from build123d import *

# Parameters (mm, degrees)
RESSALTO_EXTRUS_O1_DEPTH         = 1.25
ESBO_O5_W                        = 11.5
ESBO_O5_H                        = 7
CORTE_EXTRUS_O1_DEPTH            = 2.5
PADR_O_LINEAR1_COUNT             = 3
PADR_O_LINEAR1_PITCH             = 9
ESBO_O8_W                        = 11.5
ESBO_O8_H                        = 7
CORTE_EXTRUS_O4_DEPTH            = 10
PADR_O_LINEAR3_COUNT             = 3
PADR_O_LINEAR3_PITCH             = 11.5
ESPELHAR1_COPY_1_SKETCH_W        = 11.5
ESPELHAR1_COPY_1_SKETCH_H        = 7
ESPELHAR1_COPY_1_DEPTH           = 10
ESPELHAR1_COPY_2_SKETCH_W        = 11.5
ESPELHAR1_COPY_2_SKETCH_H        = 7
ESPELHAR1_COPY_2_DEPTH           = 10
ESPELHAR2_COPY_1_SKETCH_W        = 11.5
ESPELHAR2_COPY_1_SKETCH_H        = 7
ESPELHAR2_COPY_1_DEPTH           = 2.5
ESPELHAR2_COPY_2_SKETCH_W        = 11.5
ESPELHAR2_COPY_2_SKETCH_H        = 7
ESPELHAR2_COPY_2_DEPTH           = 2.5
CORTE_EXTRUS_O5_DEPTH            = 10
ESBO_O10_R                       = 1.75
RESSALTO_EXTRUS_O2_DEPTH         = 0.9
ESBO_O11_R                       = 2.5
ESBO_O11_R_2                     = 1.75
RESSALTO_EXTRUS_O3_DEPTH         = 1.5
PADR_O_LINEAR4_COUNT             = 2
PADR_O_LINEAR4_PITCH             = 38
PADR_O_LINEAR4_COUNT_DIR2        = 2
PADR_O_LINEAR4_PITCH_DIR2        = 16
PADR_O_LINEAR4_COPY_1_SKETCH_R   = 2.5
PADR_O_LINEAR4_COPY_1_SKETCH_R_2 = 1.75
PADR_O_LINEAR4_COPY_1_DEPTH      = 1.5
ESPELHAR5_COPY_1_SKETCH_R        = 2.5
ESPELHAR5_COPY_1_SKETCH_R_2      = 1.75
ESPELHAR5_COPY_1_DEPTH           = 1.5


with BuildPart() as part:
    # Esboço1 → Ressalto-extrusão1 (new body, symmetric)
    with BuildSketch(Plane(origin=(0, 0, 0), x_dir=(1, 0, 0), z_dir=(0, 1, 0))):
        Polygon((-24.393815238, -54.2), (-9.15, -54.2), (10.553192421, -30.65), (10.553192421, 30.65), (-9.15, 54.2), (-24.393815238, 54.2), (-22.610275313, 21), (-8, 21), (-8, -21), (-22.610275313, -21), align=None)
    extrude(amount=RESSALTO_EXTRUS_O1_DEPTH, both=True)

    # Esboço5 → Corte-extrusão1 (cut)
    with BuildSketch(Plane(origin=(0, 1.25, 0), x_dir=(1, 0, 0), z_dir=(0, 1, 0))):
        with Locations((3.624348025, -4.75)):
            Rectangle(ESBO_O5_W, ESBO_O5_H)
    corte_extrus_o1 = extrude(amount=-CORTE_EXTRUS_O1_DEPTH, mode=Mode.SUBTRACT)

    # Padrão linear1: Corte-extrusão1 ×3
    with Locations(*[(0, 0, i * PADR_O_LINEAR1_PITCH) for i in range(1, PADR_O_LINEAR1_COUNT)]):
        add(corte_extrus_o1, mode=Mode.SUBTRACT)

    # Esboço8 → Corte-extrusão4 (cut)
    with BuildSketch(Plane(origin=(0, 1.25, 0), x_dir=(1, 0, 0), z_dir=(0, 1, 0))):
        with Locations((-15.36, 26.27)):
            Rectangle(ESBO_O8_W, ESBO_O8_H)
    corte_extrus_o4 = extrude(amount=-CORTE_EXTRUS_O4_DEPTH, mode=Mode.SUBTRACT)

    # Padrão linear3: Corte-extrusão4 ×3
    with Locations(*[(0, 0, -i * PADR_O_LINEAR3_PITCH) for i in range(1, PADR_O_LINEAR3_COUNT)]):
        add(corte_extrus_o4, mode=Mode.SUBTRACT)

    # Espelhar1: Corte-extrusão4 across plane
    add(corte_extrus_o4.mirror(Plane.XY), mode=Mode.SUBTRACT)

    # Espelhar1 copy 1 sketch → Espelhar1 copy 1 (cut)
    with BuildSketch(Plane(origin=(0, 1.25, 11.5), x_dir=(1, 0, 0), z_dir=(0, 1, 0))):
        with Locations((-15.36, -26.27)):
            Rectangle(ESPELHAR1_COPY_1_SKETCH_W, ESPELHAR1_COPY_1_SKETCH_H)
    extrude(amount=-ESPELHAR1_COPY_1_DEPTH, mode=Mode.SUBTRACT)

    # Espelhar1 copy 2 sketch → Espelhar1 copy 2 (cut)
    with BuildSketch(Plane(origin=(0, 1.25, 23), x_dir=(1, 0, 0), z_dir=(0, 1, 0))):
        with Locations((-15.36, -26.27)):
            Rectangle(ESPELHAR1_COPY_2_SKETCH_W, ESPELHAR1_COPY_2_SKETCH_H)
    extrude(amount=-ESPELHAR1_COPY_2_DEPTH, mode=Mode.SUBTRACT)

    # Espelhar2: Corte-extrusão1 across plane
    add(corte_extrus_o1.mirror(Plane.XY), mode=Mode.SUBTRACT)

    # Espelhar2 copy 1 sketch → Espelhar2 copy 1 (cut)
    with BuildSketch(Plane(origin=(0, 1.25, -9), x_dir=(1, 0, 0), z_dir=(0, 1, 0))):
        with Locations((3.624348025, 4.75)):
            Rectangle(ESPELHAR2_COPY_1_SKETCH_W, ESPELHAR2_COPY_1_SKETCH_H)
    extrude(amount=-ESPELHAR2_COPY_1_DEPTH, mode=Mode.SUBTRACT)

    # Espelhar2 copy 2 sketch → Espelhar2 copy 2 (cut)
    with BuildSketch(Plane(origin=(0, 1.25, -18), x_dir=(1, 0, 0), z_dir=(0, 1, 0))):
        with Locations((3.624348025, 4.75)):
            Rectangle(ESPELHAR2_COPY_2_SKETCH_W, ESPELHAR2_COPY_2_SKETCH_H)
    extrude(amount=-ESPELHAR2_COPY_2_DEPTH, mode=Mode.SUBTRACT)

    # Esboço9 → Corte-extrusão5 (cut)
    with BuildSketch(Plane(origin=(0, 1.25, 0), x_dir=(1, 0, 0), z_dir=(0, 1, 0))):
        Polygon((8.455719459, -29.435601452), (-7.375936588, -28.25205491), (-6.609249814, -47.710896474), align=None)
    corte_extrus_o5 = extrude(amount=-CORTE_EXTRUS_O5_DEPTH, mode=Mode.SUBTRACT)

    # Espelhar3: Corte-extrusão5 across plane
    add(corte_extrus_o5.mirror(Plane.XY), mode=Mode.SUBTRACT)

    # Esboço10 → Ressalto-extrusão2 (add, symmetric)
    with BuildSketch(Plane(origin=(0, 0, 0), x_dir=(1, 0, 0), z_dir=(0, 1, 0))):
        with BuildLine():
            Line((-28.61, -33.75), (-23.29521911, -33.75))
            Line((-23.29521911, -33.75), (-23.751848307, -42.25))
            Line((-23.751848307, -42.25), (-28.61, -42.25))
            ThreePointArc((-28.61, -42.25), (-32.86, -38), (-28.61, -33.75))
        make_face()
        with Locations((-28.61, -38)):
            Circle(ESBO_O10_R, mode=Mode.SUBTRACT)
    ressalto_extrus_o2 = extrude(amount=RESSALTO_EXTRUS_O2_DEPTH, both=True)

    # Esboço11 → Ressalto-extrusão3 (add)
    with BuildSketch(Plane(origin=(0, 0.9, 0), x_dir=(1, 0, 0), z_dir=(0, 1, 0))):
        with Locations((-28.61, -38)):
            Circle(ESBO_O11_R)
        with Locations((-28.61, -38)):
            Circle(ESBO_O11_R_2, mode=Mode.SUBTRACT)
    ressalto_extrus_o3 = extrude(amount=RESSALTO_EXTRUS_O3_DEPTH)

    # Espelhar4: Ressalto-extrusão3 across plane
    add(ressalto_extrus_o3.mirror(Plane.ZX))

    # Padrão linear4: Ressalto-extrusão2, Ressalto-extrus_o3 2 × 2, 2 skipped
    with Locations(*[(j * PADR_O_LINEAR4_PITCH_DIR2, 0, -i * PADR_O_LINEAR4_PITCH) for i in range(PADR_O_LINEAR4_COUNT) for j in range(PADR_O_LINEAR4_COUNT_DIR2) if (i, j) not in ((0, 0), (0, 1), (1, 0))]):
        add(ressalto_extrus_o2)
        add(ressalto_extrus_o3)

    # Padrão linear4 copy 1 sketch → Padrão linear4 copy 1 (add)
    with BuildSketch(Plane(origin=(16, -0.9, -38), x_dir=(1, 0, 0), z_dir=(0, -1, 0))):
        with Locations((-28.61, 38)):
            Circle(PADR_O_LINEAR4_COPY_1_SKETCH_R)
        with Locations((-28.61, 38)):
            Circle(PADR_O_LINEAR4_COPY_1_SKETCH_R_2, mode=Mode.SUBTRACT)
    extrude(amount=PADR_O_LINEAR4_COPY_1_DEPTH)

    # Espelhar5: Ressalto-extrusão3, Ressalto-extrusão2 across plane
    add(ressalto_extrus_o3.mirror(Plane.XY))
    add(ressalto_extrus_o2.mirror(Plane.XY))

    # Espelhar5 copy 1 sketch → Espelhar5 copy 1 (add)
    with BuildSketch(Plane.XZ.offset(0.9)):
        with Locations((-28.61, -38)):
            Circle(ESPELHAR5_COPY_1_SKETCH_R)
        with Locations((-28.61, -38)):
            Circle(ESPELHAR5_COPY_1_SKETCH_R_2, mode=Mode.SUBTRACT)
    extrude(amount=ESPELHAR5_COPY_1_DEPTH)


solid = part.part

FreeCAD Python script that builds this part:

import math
import FreeCAD as App
import Part
import Sketcher

V = App.Vector

doc = App.newDocument("Part")
params = doc.addObject("Spreadsheet::Sheet", "Params")
for row, (alias, value) in enumerate([
    ("sketch1_height", "42 mm"),
    ("sketch1_height2", "61.3 mm"),
    ("pad1_length", "2.5 mm"),
    ("sketch2_height", "7 mm"),
    ("sketch2_width", "11.5 mm"),
    ("pocket1_length", "2.5 mm"),
    ("linearpattern_pitch", "9 mm"),
    ("sketch3_height", "7 mm"),
    ("sketch3_width", "11.5 mm"),
    ("pocket2_length", "10 mm"),
    ("linearpattern2_pitch", "11.5 mm"),
    ("sketch4_height", "7 mm"),
    ("sketch4_width", "11.5 mm"),
    ("pocket3_length", "10 mm"),
    ("sketch5_height", "7 mm"),
    ("sketch5_width", "11.5 mm"),
    ("pocket4_length", "10 mm"),
    ("sketch6_height", "7 mm"),
    ("sketch6_width", "11.5 mm"),
    ("pocket5_length", "2.5 mm"),
    ("sketch7_height", "7 mm"),
    ("sketch7_width", "11.5 mm"),
    ("pocket6_length", "2.5 mm"),
    ("pocket7_length", "10 mm"),
    ("sketch9_diameter", "3.5 mm"),
    ("sketch9_radius", "4.25 mm"),
    ("pad2_length", "1.8 mm"),
    ("sketch10_diameter", "5 mm"),
    ("sketch10_diameter2", "3.5 mm"),
    ("pad3_length", "1.5 mm"),
    ("linearpattern3_pitch", "41.231056 mm"),
    ("sketch11_diameter", "5 mm"),
    ("sketch11_diameter2", "3.5 mm"),
    ("pad4_length", "1.5 mm"),
    ("sketch12_diameter", "5 mm"),
    ("sketch12_diameter2", "3.5 mm"),
    ("pad5_length", "1.5 mm"),
], start=1):
    params.set(f"A{row}", alias)
    params.set(f"B{row}", "=" + value)
    params.setAlias(f"B{row}", alias)

body = doc.addObject("PartDesign::Body", "Body")

# Sketch on XZ plane
sketch1 = doc.addObject("Sketcher::SketchObject", "Sketch")
body.addObject(sketch1)
sketch1.AttachmentSupport = (doc.XZ_Plane, [""])
sketch1.MapMode = "FlatFace"
sketch1.addGeometry(Part.LineSegment(V(-24.393815, 54.2, 0), V(-9.15, 54.2, 0)), False)
sketch1.addGeometry(Part.LineSegment(V(-9.15, 54.2, 0), V(10.553192, 30.65, 0)), False)
sketch1.addGeometry(Part.LineSegment(V(10.553192, 30.65, 0), V(10.553192, -30.65, 0)), False)
sketch1.addGeometry(Part.LineSegment(V(10.553192, -30.65, 0), V(-9.15, -54.2, 0)), False)
sketch1.addGeometry(Part.LineSegment(V(-9.15, -54.2, 0), V(-24.393815, -54.2, 0)), False)
sketch1.addGeometry(Part.LineSegment(V(-24.393815, -54.2, 0), V(-22.610275, -21, 0)), False)
sketch1.addGeometry(Part.LineSegment(V(-22.610275, -21, 0), V(-8, -21, 0)), False)
sketch1.addGeometry(Part.LineSegment(V(-8, -21, 0), V(-8, 21, 0)), False)
sketch1.addGeometry(Part.LineSegment(V(-8, 21, 0), V(-22.610275, 21, 0)), False)
sketch1.addGeometry(Part.LineSegment(V(-22.610275, 21, 0), V(-24.393815, 54.2, 0)), False)
sketch1.addConstraint(Sketcher.Constraint("Coincident", 0, 2, 1, 1))
sketch1.addConstraint(Sketcher.Constraint("Coincident", 1, 2, 2, 1))
sketch1.addConstraint(Sketcher.Constraint("Coincident", 2, 2, 3, 1))
sketch1.addConstraint(Sketcher.Constraint("Coincident", 3, 2, 4, 1))
sketch1.addConstraint(Sketcher.Constraint("Coincident", 4, 2, 5, 1))
sketch1.addConstraint(Sketcher.Constraint("Coincident", 5, 2, 6, 1))
sketch1.addConstraint(Sketcher.Constraint("Coincident", 6, 2, 7, 1))
sketch1.addConstraint(Sketcher.Constraint("Coincident", 7, 2, 8, 1))
sketch1.addConstraint(Sketcher.Constraint("Coincident", 8, 2, 9, 1))
sketch1.addConstraint(Sketcher.Constraint("Coincident", 9, 2, 0, 1))
sketch1.addConstraint(Sketcher.Constraint("Horizontal", 0))
sketch1.addConstraint(Sketcher.Constraint("Vertical", 2))
sketch1.addConstraint(Sketcher.Constraint("Horizontal", 4))
sketch1.addConstraint(Sketcher.Constraint("Horizontal", 6))
sketch1.addConstraint(Sketcher.Constraint("Vertical", 7))
sketch1.addConstraint(Sketcher.Constraint("Horizontal", 8))
sketch1.addConstraint(Sketcher.Constraint("Symmetric", 0, 2, 3, 2, -1))
sketch1.addConstraint(Sketcher.Constraint("Symmetric", 5, 2, 8, 2, -1))
sketch1.addConstraint(Sketcher.Constraint("Vertical", 4, 2, 9, 2))
sketch1.addConstraint(Sketcher.Constraint("Equal", 1, 3))
sketch1.addConstraint(Sketcher.Constraint("DistanceY", 7, 1, 7, 2, 42.0))
sketch1.addConstraint(Sketcher.Constraint("DistanceY", 2, 2, 2, 1, 61.3))
sketch1.addConstraint(Sketcher.Constraint("DistanceX", 6, 2, -1, 1, 8.0))
sketch1.addConstraint(Sketcher.Constraint("DistanceY", -1, 1, 0, 2, 54.2))
sketch1.addConstraint(Sketcher.Constraint("DistanceX", 0, 2, -1, 1, 9.15))
sketch1.addConstraint(Sketcher.Constraint("DistanceX", 0, 1, 0, 2, 15.243815))
sketch1.addConstraint(Sketcher.Constraint("DistanceX", 6, 1, 6, 2, 14.610275))
sketch1.addConstraint(Sketcher.Constraint("Distance", 1, 30.705346))
sketch1.setExpression("Constraints[20]", "Params.sketch1_height")
sketch1.setExpression("Constraints[21]", "Params.sketch1_height2")
pad1 = doc.addObject("PartDesign::Pad", "Pad")
body.addObject(pad1)
pad1.Profile = sketch1
pad1.setExpression("Length", "Params.pad1_length")
pad1.Midplane = True

# Sketch on XZ plane
sketch2 = doc.addObject("Sketcher::SketchObject", "Sketch001")
body.addObject(sketch2)
sketch2.AttachmentSupport = (doc.XZ_Plane, [""])
sketch2.MapMode = "FlatFace"
sketch2.AttachmentOffset = App.Placement(V(0, 0, -1.25), App.Rotation())
sketch2.addGeometry(Part.LineSegment(V(-2.125652, 1.25, 0), V(-2.125652, 8.25, 0)), False)
sketch2.addGeometry(Part.LineSegment(V(-2.125652, 8.25, 0), V(9.374348, 8.25, 0)), False)
sketch2.addGeometry(Part.LineSegment(V(9.374348, 8.25, 0), V(9.374348, 1.25, 0)), False)
sketch2.addGeometry(Part.LineSegment(V(9.374348, 1.25, 0), V(-2.125652, 1.25, 0)), False)
sketch2.addConstraint(Sketcher.Constraint("Coincident", 0, 2, 1, 1))
sketch2.addConstraint(Sketcher.Constraint("Coincident", 1, 2, 2, 1))
sketch2.addConstraint(Sketcher.Constraint("Coincident", 2, 2, 3, 1))
sketch2.addConstraint(Sketcher.Constraint("Coincident", 3, 2, 0, 1))
sketch2.addConstraint(Sketcher.Constraint("Vertical", 0))
sketch2.addConstraint(Sketcher.Constraint("Horizontal", 1))
sketch2.addConstraint(Sketcher.Constraint("Vertical", 2))
sketch2.addConstraint(Sketcher.Constraint("Horizontal", 3))
sketch2.addConstraint(Sketcher.Constraint("DistanceY", 0, 1, 0, 2, 7.0))
sketch2.addConstraint(Sketcher.Constraint("DistanceX", 1, 1, 1, 2, 11.5))
sketch2.addConstraint(Sketcher.Constraint("DistanceY", -1, 1, 0, 2, 8.25))
sketch2.addConstraint(Sketcher.Constraint("DistanceX", 0, 2, -1, 1, 2.125652))
sketch2.setExpression("Constraints[8]", "Params.sketch2_height")
sketch2.setExpression("Constraints[9]", "Params.sketch2_width")
pocket1 = doc.addObject("PartDesign::Pocket", "Pocket")
body.addObject(pocket1)
pocket1.Profile = sketch2
pocket1.setExpression("Length", "Params.pocket1_length")
pocket1.Reversed = True
doc.recompute()

linearpattern = doc.addObject("PartDesign::LinearPattern", "LinearPattern")
body.addObject(linearpattern)
linearpattern.Originals = [pocket1]
linearpattern.Direction = (doc.Z_Axis, [""])
linearpattern.Mode = "offset"
linearpattern.setExpression("Offset", "Params.linearpattern_pitch")
linearpattern.Occurrences = 3
body.Tip = linearpattern

# Sketch on XZ plane
sketch3 = doc.addObject("Sketcher::SketchObject", "Sketch002")
body.addObject(sketch3)
sketch3.AttachmentSupport = (doc.XZ_Plane, [""])
sketch3.MapMode = "FlatFace"
sketch3.AttachmentOffset = App.Placement(V(0, 0, -1.25), App.Rotation())
sketch3.addGeometry(Part.LineSegment(V(-21.11, -29.77, 0), V(-21.11, -22.77, 0)), False)
sketch3.addGeometry(Part.LineSegment(V(-21.11, -22.77, 0), V(-9.61, -22.77, 0)), False)
sketch3.addGeometry(Part.LineSegment(V(-9.61, -22.77, 0), V(-9.61, -29.77, 0)), False)
sketch3.addGeometry(Part.LineSegment(V(-9.61, -29.77, 0), V(-21.11, -29.77, 0)), False)
sketch3.addConstraint(Sketcher.Constraint("Coincident", 0, 2, 1, 1))
sketch3.addConstraint(Sketcher.Constraint("Coincident", 1, 2, 2, 1))
sketch3.addConstraint(Sketcher.Constraint("Coincident", 2, 2, 3, 1))
sketch3.addConstraint(Sketcher.Constraint("Coincident", 3, 2, 0, 1))
sketch3.addConstraint(Sketcher.Constraint("Vertical", 0))
sketch3.addConstraint(Sketcher.Constraint("Horizontal", 1))
sketch3.addConstraint(Sketcher.Constraint("Vertical", 2))
sketch3.addConstraint(Sketcher.Constraint("Horizontal", 3))
sketch3.addConstraint(Sketcher.Constraint("DistanceY", 0, 1, 0, 2, 7.0))
sketch3.addConstraint(Sketcher.Constraint("DistanceX", 1, 1, 1, 2, 11.5))
sketch3.addConstraint(Sketcher.Constraint("DistanceX", 0, 2, -1, 1, 21.11))
sketch3.addConstraint(Sketcher.Constraint("DistanceY", 0, 2, -1, 1, 22.77))
sketch3.setExpression("Constraints[8]", "Params.sketch3_height")
sketch3.setExpression("Constraints[9]", "Params.sketch3_width")
pocket2 = doc.addObject("PartDesign::Pocket", "Pocket001")
body.addObject(pocket2)
pocket2.Profile = sketch3
pocket2.setExpression("Length", "Params.pocket2_length")
pocket2.Reversed = True
doc.recompute()

linearpattern2 = doc.addObject("PartDesign::LinearPattern", "LinearPattern001")
body.addObject(linearpattern2)
linearpattern2.Originals = [pocket2]
linearpattern2.Direction = (doc.Z_Axis, [""])
linearpattern2.Mode = "offset"
linearpattern2.setExpression("Offset", "Params.linearpattern2_pitch")
linearpattern2.Occurrences = 3
linearpattern2.Reversed = True
body.Tip = linearpattern2
doc.recompute()

mirrored = doc.addObject("PartDesign::Mirrored", "Mirrored")
body.addObject(mirrored)
mirrored.Originals = [pocket2]
mirrored.MirrorPlane = (doc.XY_Plane, [""])
body.Tip = mirrored

# Sketch on XZ plane
sketch4 = doc.addObject("Sketcher::SketchObject", "Sketch003")
body.addObject(sketch4)
sketch4.AttachmentSupport = (doc.XZ_Plane, [""])
sketch4.MapMode = "FlatFace"
sketch4.AttachmentOffset = App.Placement(V(0, 0, -1.25), App.Rotation())
sketch4.addGeometry(Part.LineSegment(V(-21.11, 34.27, 0), V(-21.11, 41.27, 0)), False)
sketch4.addGeometry(Part.LineSegment(V(-21.11, 41.27, 0), V(-9.61, 41.27, 0)), False)
sketch4.addGeometry(Part.LineSegment(V(-9.61, 41.27, 0), V(-9.61, 34.27, 0)), False)
sketch4.addGeometry(Part.LineSegment(V(-9.61, 34.27, 0), V(-21.11, 34.27, 0)), False)
sketch4.addConstraint(Sketcher.Constraint("Coincident", 0, 2, 1, 1))
sketch4.addConstraint(Sketcher.Constraint("Coincident", 1, 2, 2, 1))
sketch4.addConstraint(Sketcher.Constraint("Coincident", 2, 2, 3, 1))
sketch4.addConstraint(Sketcher.Constraint("Coincident", 3, 2, 0, 1))
sketch4.addConstraint(Sketcher.Constraint("Vertical", 0))
sketch4.addConstraint(Sketcher.Constraint("Horizontal", 1))
sketch4.addConstraint(Sketcher.Constraint("Vertical", 2))
sketch4.addConstraint(Sketcher.Constraint("Horizontal", 3))
sketch4.addConstraint(Sketcher.Constraint("DistanceY", 0, 1, 0, 2, 7.0))
sketch4.addConstraint(Sketcher.Constraint("DistanceX", 1, 1, 1, 2, 11.5))
sketch4.addConstraint(Sketcher.Constraint("DistanceX", 0, 2, -1, 1, 21.11))
sketch4.addConstraint(Sketcher.Constraint("DistanceY", -1, 1, 0, 2, 41.27))
sketch4.setExpression("Constraints[8]", "Params.sketch4_height")
sketch4.setExpression("Constraints[9]", "Params.sketch4_width")
pocket3 = doc.addObject("PartDesign::Pocket", "Pocket002")
body.addObject(pocket3)
pocket3.Profile = sketch4
pocket3.setExpression("Length", "Params.pocket3_length")
pocket3.Reversed = True

# Sketch on XZ plane
sketch5 = doc.addObject("Sketcher::SketchObject", "Sketch004")
body.addObject(sketch5)
sketch5.AttachmentSupport = (doc.XZ_Plane, [""])
sketch5.MapMode = "FlatFace"
sketch5.AttachmentOffset = App.Placement(V(0, 0, -1.25), App.Rotation())
sketch5.addGeometry(Part.LineSegment(V(-21.11, 45.77, 0), V(-21.11, 52.77, 0)), False)
sketch5.addGeometry(Part.LineSegment(V(-21.11, 52.77, 0), V(-9.61, 52.77, 0)), False)
sketch5.addGeometry(Part.LineSegment(V(-9.61, 52.77, 0), V(-9.61, 45.77, 0)), False)
sketch5.addGeometry(Part.LineSegment(V(-9.61, 45.77, 0), V(-21.11, 45.77, 0)), False)
sketch5.addConstraint(Sketcher.Constraint("Coincident", 0, 2, 1, 1))
sketch5.addConstraint(Sketcher.Constraint("Coincident", 1, 2, 2, 1))
sketch5.addConstraint(Sketcher.Constraint("Coincident", 2, 2, 3, 1))
sketch5.addConstraint(Sketcher.Constraint("Coincident", 3, 2, 0, 1))
sketch5.addConstraint(Sketcher.Constraint("Vertical", 0))
sketch5.addConstraint(Sketcher.Constraint("Horizontal", 1))
sketch5.addConstraint(Sketcher.Constraint("Vertical", 2))
sketch5.addConstraint(Sketcher.Constraint("Horizontal", 3))
sketch5.addConstraint(Sketcher.Constraint("DistanceY", 0, 1, 0, 2, 7.0))
sketch5.addConstraint(Sketcher.Constraint("DistanceX", 1, 1, 1, 2, 11.5))
sketch5.addConstraint(Sketcher.Constraint("DistanceX", 0, 2, -1, 1, 21.11))
sketch5.addConstraint(Sketcher.Constraint("DistanceY", -1, 1, 0, 2, 52.77))
sketch5.setExpression("Constraints[8]", "Params.sketch5_height")
sketch5.setExpression("Constraints[9]", "Params.sketch5_width")
pocket4 = doc.addObject("PartDesign::Pocket", "Pocket003")
body.addObject(pocket4)
pocket4.Profile = sketch5
pocket4.setExpression("Length", "Params.pocket4_length")
pocket4.Reversed = True
doc.recompute()

mirrored2 = doc.addObject("PartDesign::Mirrored", "Mirrored001")
body.addObject(mirrored2)
mirrored2.Originals = [pocket1]
mirrored2.MirrorPlane = (doc.XY_Plane, [""])
body.Tip = mirrored2

# Sketch on XZ plane
sketch6 = doc.addObject("Sketcher::SketchObject", "Sketch005")
body.addObject(sketch6)
sketch6.AttachmentSupport = (doc.XZ_Plane, [""])
sketch6.MapMode = "FlatFace"
sketch6.AttachmentOffset = App.Placement(V(0, 0, -1.25), App.Rotation())
sketch6.addGeometry(Part.LineSegment(V(-2.125652, -17.25, 0), V(-2.125652, -10.25, 0)), False)
sketch6.addGeometry(Part.LineSegment(V(-2.125652, -10.25, 0), V(9.374348, -10.25, 0)), False)
sketch6.addGeometry(Part.LineSegment(V(9.374348, -10.25, 0), V(9.374348, -17.25, 0)), False)
sketch6.addGeometry(Part.LineSegment(V(9.374348, -17.25, 0), V(-2.125652, -17.25, 0)), False)
sketch6.addConstraint(Sketcher.Constraint("Coincident", 0, 2, 1, 1))
sketch6.addConstraint(Sketcher.Constraint("Coincident", 1, 2, 2, 1))
sketch6.addConstraint(Sketcher.Constraint("Coincident", 2, 2, 3, 1))
sketch6.addConstraint(Sketcher.Constraint("Coincident", 3, 2, 0, 1))
sketch6.addConstraint(Sketcher.Constraint("Vertical", 0))
sketch6.addConstraint(Sketcher.Constraint("Horizontal", 1))
sketch6.addConstraint(Sketcher.Constraint("Vertical", 2))
sketch6.addConstraint(Sketcher.Constraint("Horizontal", 3))
sketch6.addConstraint(Sketcher.Constraint("DistanceY", 0, 1, 0, 2, 7.0))
sketch6.addConstraint(Sketcher.Constraint("DistanceX", 1, 1, 1, 2, 11.5))
sketch6.addConstraint(Sketcher.Constraint("DistanceY", 0, 2, -1, 1, 10.25))
sketch6.addConstraint(Sketcher.Constraint("DistanceX", 0, 2, -1, 1, 2.125652))
sketch6.setExpression("Constraints[8]", "Params.sketch6_height")
sketch6.setExpression("Constraints[9]", "Params.sketch6_width")
pocket5 = doc.addObject("PartDesign::Pocket", "Pocket004")
body.addObject(pocket5)
pocket5.Profile = sketch6
pocket5.setExpression("Length", "Params.pocket5_length")
pocket5.Reversed = True

# Sketch on XZ plane
sketch7 = doc.addObject("Sketcher::SketchObject", "Sketch006")
body.addObject(sketch7)
sketch7.AttachmentSupport = (doc.XZ_Plane, [""])
sketch7.MapMode = "FlatFace"
sketch7.AttachmentOffset = App.Placement(V(0, 0, -1.25), App.Rotation())
sketch7.addGeometry(Part.LineSegment(V(-2.125652, -26.25, 0), V(-2.125652, -19.25, 0)), False)
sketch7.addGeometry(Part.LineSegment(V(-2.125652, -19.25, 0), V(9.374348, -19.25, 0)), False)
sketch7.addGeometry(Part.LineSegment(V(9.374348, -19.25, 0), V(9.374348, -26.25, 0)), False)
sketch7.addGeometry(Part.LineSegment(V(9.374348, -26.25, 0), V(-2.125652, -26.25, 0)), False)
sketch7.addConstraint(Sketcher.Constraint("Coincident", 0, 2, 1, 1))
sketch7.addConstraint(Sketcher.Constraint("Coincident", 1, 2, 2, 1))
sketch7.addConstraint(Sketcher.Constraint("Coincident", 2, 2, 3, 1))
sketch7.addConstraint(Sketcher.Constraint("Coincident", 3, 2, 0, 1))
sketch7.addConstraint(Sketcher.Constraint("Vertical", 0))
sketch7.addConstraint(Sketcher.Constraint("Horizontal", 1))
sketch7.addConstraint(Sketcher.Constraint("Vertical", 2))
sketch7.addConstraint(Sketcher.Constraint("Horizontal", 3))
sketch7.addConstraint(Sketcher.Constraint("DistanceY", 0, 1, 0, 2, 7.0))
sketch7.addConstraint(Sketcher.Constraint("DistanceX", 1, 1, 1, 2, 11.5))
sketch7.addConstraint(Sketcher.Constraint("DistanceY", 0, 2, -1, 1, 19.25))
sketch7.addConstraint(Sketcher.Constraint("DistanceX", 0, 2, -1, 1, 2.125652))
sketch7.setExpression("Constraints[8]", "Params.sketch7_height")
sketch7.setExpression("Constraints[9]", "Params.sketch7_width")
pocket6 = doc.addObject("PartDesign::Pocket", "Pocket005")
body.addObject(pocket6)
pocket6.Profile = sketch7
pocket6.setExpression("Length", "Params.pocket6_length")
pocket6.Reversed = True

# Sketch on XZ plane
sketch8 = doc.addObject("Sketcher::SketchObject", "Sketch007")
body.addObject(sketch8)
sketch8.AttachmentSupport = (doc.XZ_Plane, [""])
sketch8.MapMode = "FlatFace"
sketch8.AttachmentOffset = App.Placement(V(0, 0, -1.25), App.Rotation())
sketch8.addGeometry(Part.LineSegment(V(8.455719, 29.435601, 0), V(-7.375937, 28.252055, 0)), False)
sketch8.addGeometry(Part.LineSegment(V(-7.375937, 28.252055, 0), V(-6.60925, 47.710896, 0)), False)
sketch8.addGeometry(Part.LineSegment(V(-6.60925, 47.710896, 0), V(8.455719, 29.435601, 0)), False)
sketch8.addConstraint(Sketcher.Constraint("Coincident", 0, 2, 1, 1))
sketch8.addConstraint(Sketcher.Constraint("Coincident", 1, 2, 2, 1))
sketch8.addConstraint(Sketcher.Constraint("Coincident", 2, 2, 0, 1))
sketch8.addConstraint(Sketcher.Constraint("DistanceY", -1, 1, 2, 2, 29.435601))
sketch8.addConstraint(Sketcher.Constraint("Distance", 1, 19.47394))
sketch8.addConstraint(Sketcher.Constraint("DistanceX", 1, 2, -1, 1, 6.60925))
sketch8.addConstraint(Sketcher.Constraint("DistanceX", -1, 1, 2, 2, 8.455719))
sketch8.addConstraint(Sketcher.Constraint("DistanceY", 0, 2, 1, 2, 19.458842))
sketch8.addConstraint(Sketcher.Constraint("Distance", 0, 15.875834))
pocket7 = doc.addObject("PartDesign::Pocket", "Pocket006")
body.addObject(pocket7)
pocket7.Profile = sketch8
pocket7.setExpression("Length", "Params.pocket7_length")
pocket7.Reversed = True
doc.recompute()

mirrored3 = doc.addObject("PartDesign::Mirrored", "Mirrored002")
body.addObject(mirrored3)
mirrored3.Originals = [pocket7]
mirrored3.MirrorPlane = (doc.XY_Plane, [""])
body.Tip = mirrored3

# Sketch on XZ plane
sketch9 = doc.addObject("Sketcher::SketchObject", "Sketch008")
body.addObject(sketch9)
sketch9.AttachmentSupport = (doc.XZ_Plane, [""])
sketch9.MapMode = "FlatFace"
sketch9.addGeometry(Part.LineSegment(V(-23.295219, 33.75, 0), V(-28.61, 33.75, 0)), False)
sketch9.addGeometry(Part.ArcOfCircle(Part.Circle(V(-28.61, 38, 0), V(0, 0, 1), 4.25), math.radians(90), math.radians(270)), False)
sketch9.addGeometry(Part.LineSegment(V(-28.61, 42.25, 0), V(-23.751848, 42.25, 0)), False)
sketch9.addGeometry(Part.LineSegment(V(-23.751848, 42.25, 0), V(-23.295219, 33.75, 0)), False)
sketch9.addGeometry(Part.Circle(V(-28.61, 38, 0), V(0, 0, 1), 1.75), False)
sketch9.addConstraint(Sketcher.Constraint("Tangent", 0, 2, 1, 2))
sketch9.addConstraint(Sketcher.Constraint("Tangent", 1, 1, 2, 1))
sketch9.addConstraint(Sketcher.Constraint("Coincident", 2, 2, 3, 1))
sketch9.addConstraint(Sketcher.Constraint("Coincident", 3, 2, 0, 1))
sketch9.addConstraint(Sketcher.Constraint("Horizontal", 0))
sketch9.addConstraint(Sketcher.Constraint("Horizontal", 2))
sketch9.addConstraint(Sketcher.Constraint("Coincident", 4, 3, 1, 3))
sketch9.addConstraint(Sketcher.Constraint("Diameter", 4, 3.5))
sketch9.addConstraint(Sketcher.Constraint("Radius", 1, 4.25))
sketch9.addConstraint(Sketcher.Constraint("DistanceY", -1, 1, 1, 3, 38.0))
sketch9.addConstraint(Sketcher.Constraint("DistanceX", 1, 3, -1, 1, 28.61))
sketch9.addConstraint(Sketcher.Constraint("DistanceX", 0, 2, 0, 1, 5.314781))
sketch9.addConstraint(Sketcher.Constraint("DistanceX", 2, 1, 2, 2, 4.858152))
sketch9.setExpression("Constraints[7]", "Params.sketch9_diameter")
sketch9.setExpression("Constraints[8]", "Params.sketch9_radius")
pad2 = doc.addObject("PartDesign::Pad", "Pad001")
body.addObject(pad2)
pad2.Profile = sketch9
pad2.setExpression("Length", "Params.pad2_length")
pad2.Midplane = True

# Sketch on XZ plane
sketch10 = doc.addObject("Sketcher::SketchObject", "Sketch009")
body.addObject(sketch10)
sketch10.AttachmentSupport = (doc.XZ_Plane, [""])
sketch10.MapMode = "FlatFace"
sketch10.AttachmentOffset = App.Placement(V(0, 0, -0.9), App.Rotation())
sketch10.addGeometry(Part.Circle(V(-28.61, 38, 0), V(0, 0, 1), 2.5), False)
sketch10.addGeometry(Part.Circle(V(-28.61, 38, 0), V(0, 0, 1), 1.75), False)
sketch10.addConstraint(Sketcher.Constraint("Coincident", 1, 3, 0, 3))
sketch10.addConstraint(Sketcher.Constraint("Diameter", 0, 5.0))
sketch10.addConstraint(Sketcher.Constraint("Diameter", 1, 3.5))
sketch10.addConstraint(Sketcher.Constraint("DistanceY", -1, 1, 0, 3, 38.0))
sketch10.addConstraint(Sketcher.Constraint("DistanceX", 0, 3, -1, 1, 28.61))
sketch10.setExpression("Constraints[1]", "Params.sketch10_diameter")
sketch10.setExpression("Constraints[2]", "Params.sketch10_diameter2")
pad3 = doc.addObject("PartDesign::Pad", "Pad002")
body.addObject(pad3)
pad3.Profile = sketch10
pad3.setExpression("Length", "Params.pad3_length")
pad3.Reversed = True
doc.recompute()

mirrored4 = doc.addObject("PartDesign::Mirrored", "Mirrored003")
body.addObject(mirrored4)
mirrored4.Originals = [pad3]
mirrored4.MirrorPlane = (doc.XZ_Plane, [""])
body.Tip = mirrored4
doc.recompute()

datumline = doc.addObject("PartDesign::Line", "DatumLine")
body.addObject(datumline)
datumline.Placement = App.Placement(V(0, 0, 0), App.Rotation(V(0, 0, 1), V(0.388057, 0, -0.921635375)))
linearpattern3 = doc.addObject("PartDesign::LinearPattern", "LinearPattern002")
body.addObject(linearpattern3)
linearpattern3.Originals = [pad2, pad3]
linearpattern3.Direction = (datumline, [""])
linearpattern3.Mode = "offset"
linearpattern3.setExpression("Offset", "Params.linearpattern3_pitch")
linearpattern3.Occurrences = 2
body.Tip = linearpattern3

# Sketch on XZ plane
sketch11 = doc.addObject("Sketcher::SketchObject", "Sketch010")
body.addObject(sketch11)
sketch11.AttachmentSupport = (doc.XZ_Plane, [""])
sketch11.MapMode = "FlatFace"
sketch11.AttachmentOffset = App.Placement(V(0, 0, 0.9), App.Rotation())
sketch11.addGeometry(Part.Circle(V(-12.61, 0, 0), V(0, 0, 1), 2.5), False)
sketch11.addGeometry(Part.Circle(V(-12.61, 0, 0), V(0, 0, 1), 1.75), False)
sketch11.addConstraint(Sketcher.Constraint("Coincident", 1, 3, 0, 3))
sketch11.addConstraint(Sketcher.Constraint("PointOnObject", 0, 3, -1))
sketch11.addConstraint(Sketcher.Constraint("Diameter", 0, 5.0))
sketch11.addConstraint(Sketcher.Constraint("Diameter", 1, 3.5))
sketch11.addConstraint(Sketcher.Constraint("DistanceX", 0, 3, -1, 1, 12.61))
sketch11.setExpression("Constraints[2]", "Params.sketch11_diameter")
sketch11.setExpression("Constraints[3]", "Params.sketch11_diameter2")
pad4 = doc.addObject("PartDesign::Pad", "Pad003")
body.addObject(pad4)
pad4.Profile = sketch11
pad4.setExpression("Length", "Params.pad4_length")
doc.recompute()

mirrored5 = doc.addObject("PartDesign::Mirrored", "Mirrored004")
body.addObject(mirrored5)
mirrored5.Originals = [pad3, pad2]
mirrored5.MirrorPlane = (doc.XY_Plane, [""])
body.Tip = mirrored5

# Sketch on XZ plane
sketch12 = doc.addObject("Sketcher::SketchObject", "Sketch011")
body.addObject(sketch12)
sketch12.AttachmentSupport = (doc.XZ_Plane, [""])
sketch12.MapMode = "FlatFace"
sketch12.AttachmentOffset = App.Placement(V(0, 0, 0.9), App.Rotation())
sketch12.addGeometry(Part.Circle(V(-28.61, -38, 0), V(0, 0, 1), 2.5), False)
sketch12.addGeometry(Part.Circle(V(-28.61, -38, 0), V(0, 0, 1), 1.75), False)
sketch12.addConstraint(Sketcher.Constraint("Coincident", 1, 3, 0, 3))
sketch12.addConstraint(Sketcher.Constraint("Diameter", 0, 5.0))
sketch12.addConstraint(Sketcher.Constraint("Diameter", 1, 3.5))
sketch12.addConstraint(Sketcher.Constraint("DistanceY", 0, 3, -1, 1, 38.0))
sketch12.addConstraint(Sketcher.Constraint("DistanceX", 0, 3, -1, 1, 28.61))
sketch12.setExpression("Constraints[1]", "Params.sketch12_diameter")
sketch12.setExpression("Constraints[2]", "Params.sketch12_diameter2")
pad5 = doc.addObject("PartDesign::Pad", "Pad004")
body.addObject(pad5)
pad5.Profile = sketch12
pad5.setExpression("Length", "Params.pad5_length")

doc.recompute()
